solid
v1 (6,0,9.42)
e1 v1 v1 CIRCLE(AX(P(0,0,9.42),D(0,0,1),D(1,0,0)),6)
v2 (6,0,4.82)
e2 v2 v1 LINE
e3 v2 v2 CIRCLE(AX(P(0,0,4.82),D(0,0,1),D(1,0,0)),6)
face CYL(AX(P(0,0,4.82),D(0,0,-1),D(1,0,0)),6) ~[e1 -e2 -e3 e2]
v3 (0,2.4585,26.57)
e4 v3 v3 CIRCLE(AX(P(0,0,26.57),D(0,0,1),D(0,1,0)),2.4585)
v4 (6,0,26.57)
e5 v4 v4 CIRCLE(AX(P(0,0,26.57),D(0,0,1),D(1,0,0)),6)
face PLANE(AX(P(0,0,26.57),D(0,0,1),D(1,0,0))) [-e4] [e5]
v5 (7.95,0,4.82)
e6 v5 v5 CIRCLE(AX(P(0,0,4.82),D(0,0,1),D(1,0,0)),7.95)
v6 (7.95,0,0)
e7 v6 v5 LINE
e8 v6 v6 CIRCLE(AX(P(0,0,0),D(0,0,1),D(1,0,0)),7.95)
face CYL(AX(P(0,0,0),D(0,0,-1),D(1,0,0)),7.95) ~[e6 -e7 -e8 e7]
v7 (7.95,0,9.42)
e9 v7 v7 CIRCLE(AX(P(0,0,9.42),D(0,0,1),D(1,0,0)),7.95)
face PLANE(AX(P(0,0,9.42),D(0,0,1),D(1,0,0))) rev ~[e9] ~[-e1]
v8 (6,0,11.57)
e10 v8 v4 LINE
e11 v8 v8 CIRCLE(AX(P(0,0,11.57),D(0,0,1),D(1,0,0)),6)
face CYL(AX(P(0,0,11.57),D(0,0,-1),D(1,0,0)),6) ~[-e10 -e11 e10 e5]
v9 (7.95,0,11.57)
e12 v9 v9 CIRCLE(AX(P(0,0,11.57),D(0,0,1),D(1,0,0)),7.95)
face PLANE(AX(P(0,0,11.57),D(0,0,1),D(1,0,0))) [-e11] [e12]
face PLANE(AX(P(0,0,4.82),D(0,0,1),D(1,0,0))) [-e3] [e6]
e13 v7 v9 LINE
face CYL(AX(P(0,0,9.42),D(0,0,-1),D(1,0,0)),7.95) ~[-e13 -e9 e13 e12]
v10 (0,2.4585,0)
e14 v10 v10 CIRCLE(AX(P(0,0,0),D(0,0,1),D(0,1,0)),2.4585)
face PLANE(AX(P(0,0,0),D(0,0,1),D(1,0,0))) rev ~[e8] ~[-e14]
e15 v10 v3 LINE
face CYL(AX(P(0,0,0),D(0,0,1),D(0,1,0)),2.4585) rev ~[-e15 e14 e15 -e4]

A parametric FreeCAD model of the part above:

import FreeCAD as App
import Part
import Sketcher

V = App.Vector
Q = App.Units.Quantity

doc = App.newDocument("Part")
body = doc.addObject("PartDesign::Body", "Body")

# Sketch on XY plane
sketch1 = body.newObject("Sketcher::SketchObject", "Sketch")
sketch1.AttachmentSupport = (doc.getObject("XY_Plane"), [""])
sketch1.MapMode = "FlatFace"
sketch1.addGeometry(Part.Circle(V(0, 0, 0), V(0, 0, 1), 8), False)
sketch1.addConstraint(Sketcher.Constraint("Coincident", 0, 3, -1, 1))
sketch1.addConstraint(Sketcher.Constraint("Diameter", 0, Q("15.9 mm")))
pad1 = body.newObject("PartDesign::Pad", "Pad")
pad1.Profile = sketch1
pad1.Length = 4.82

# Sketch on XY plane
sketch2 = body.newObject("Sketcher::SketchObject", "Sketch001")
sketch2.AttachmentSupport = (doc.getObject("XY_Plane"), [""])
sketch2.MapMode = "FlatFace"
sketch2.AttachmentOffset = App.Placement(V(0, 0, 4.82), App.Rotation())
sketch2.addGeometry(Part.Circle(V(0, 0, 0), V(0, 0, 1), 6), False)
sketch2.addConstraint(Sketcher.Constraint("Coincident", 0, 3, -1, 1))
sketch2.addConstraint(Sketcher.Constraint("Diameter", 0, Q("12 mm")))
pad2 = body.newObject("PartDesign::Pad", "Pad001")
pad2.Profile = sketch2
pad2.Length = 4.6

# Sketch on XY plane
sketch3 = body.newObject("Sketcher::SketchObject", "Sketch002")
sketch3.AttachmentSupport = (doc.getObject("XY_Plane"), [""])
sketch3.MapMode = "FlatFace"
sketch3.AttachmentOffset = App.Placement(V(0, 0, 9.42), App.Rotation())
sketch3.addGeometry(Part.Circle(V(0, 0, 0), V(0, 0, 1), 8), False)
sketch3.addConstraint(Sketcher.Constraint("Coincident", 0, 3, -1, 1))
sketch3.addConstraint(Sketcher.Constraint("Diameter", 0, Q("15.9 mm")))
pad3 = body.newObject("PartDesign::Pad", "Pad002")
pad3.Profile = sketch3
pad3.Length = 2.15

# Sketch on XY plane
sketch4 = body.newObject("Sketcher::SketchObject", "Sketch003")
sketch4.AttachmentSupport = (doc.getObject("XY_Plane"), [""])
sketch4.MapMode = "FlatFace"
sketch4.AttachmentOffset = App.Placement(V(0, 0, 11.57), App.Rotation())
sketch4.addGeometry(Part.Circle(V(0, 0, 0), V(0, 0, 1), 6), False)
sketch4.addConstraint(Sketcher.Constraint("Coincident", 0, 3, -1, 1))
sketch4.addConstraint(Sketcher.Constraint("Diameter", 0, Q("12 mm")))
pad4 = body.newObject("PartDesign::Pad", "Pad003")
pad4.Profile = sketch4
pad4.Length = 15

# Sketch on XY plane
sketch5 = body.newObject("Sketcher::SketchObject", "Sketch004")
sketch5.AttachmentSupport = (doc.getObject("XY_Plane"), [""])
sketch5.MapMode = "FlatFace"
sketch5.addGeometry(Part.Circle(V(0, 0, 0), V(0, 0, 1), 2.5), False)
sketch5.addConstraint(Sketcher.Constraint("Coincident", 0, 3, -1, 1))
sketch5.addConstraint(Sketcher.Constraint("Diameter", 0, Q("4.917 mm")))
doc.recompute()
hole = body.newObject("PartDesign::Hole", "Hole")
hole.Profile = sketch5
hole.ThreadType = "None"
hole.Diameter = 4.917
hole.DepthType = "ThroughAll"
hole.Reversed = True

doc.recompute()
